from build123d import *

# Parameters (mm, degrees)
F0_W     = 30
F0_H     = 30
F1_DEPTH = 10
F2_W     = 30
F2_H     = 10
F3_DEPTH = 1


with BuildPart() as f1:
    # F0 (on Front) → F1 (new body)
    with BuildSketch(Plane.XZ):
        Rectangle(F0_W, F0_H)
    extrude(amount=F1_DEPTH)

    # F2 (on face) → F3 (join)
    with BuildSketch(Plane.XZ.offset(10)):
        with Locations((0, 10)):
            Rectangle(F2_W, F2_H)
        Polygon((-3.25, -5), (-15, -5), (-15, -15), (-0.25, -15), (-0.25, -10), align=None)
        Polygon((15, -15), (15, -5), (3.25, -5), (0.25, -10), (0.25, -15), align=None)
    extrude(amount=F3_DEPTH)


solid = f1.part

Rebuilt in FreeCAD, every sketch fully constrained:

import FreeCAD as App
import Part
import Sketcher
from FreeCAD import Vector

doc = App.newDocument("Part")
params = doc.addObject("Spreadsheet::Sheet", "Params")
for row, (alias, value) in enumerate([
    ("sketch1_width", "30 mm"),
    ("pad1_length", "10 mm"),
    ("sketch2_width", "30 mm"),
    ("sketch2_height", "10 mm"),
    ("sketch2_height2", "5 mm"),
    ("sketch2_width2", "11.75 mm"),
    ("pad2_length", "1 mm"),
], start=1):
    params.set(f"A{row}", alias)
    params.set(f"B{row}", "=" + value)
    params.setAlias(f"B{row}", alias)

body = doc.addObject("PartDesign::Body", "Body")

sketch1 = body.newObject("Sketcher::SketchObject", "Sketch")
sketch1.AttachmentSupport = (doc.getObject("XZ_Plane"), [""])
sketch1.MapMode = "FlatFace"
sketch1.addGeometry([
    Part.LineSegment(Vector(-15, 15, 0), Vector(-15, -15, 0)),
    Part.LineSegment(Vector(-15, -15, 0), Vector(15, -15, 0)),
    Part.LineSegment(Vector(15, -15, 0), Vector(15, 15, 0)),
    Part.LineSegment(Vector(15, 15, 0), Vector(-15, 15, 0)),
], False)
sketch1.addConstraint([
    Sketcher.Constraint("Coincident", 0, 2, 1, 1),
    Sketcher.Constraint("Coincident", 1, 2, 2, 1),
    Sketcher.Constraint("Coincident", 2, 2, 3, 1),
    Sketcher.Constraint("Coincident", 3, 2, 0, 1),
    Sketcher.Constraint("Vertical", 0),
    Sketcher.Constraint("Horizontal", 1),
    Sketcher.Constraint("Vertical", 2),
    Sketcher.Constraint("Horizontal", 3),
    Sketcher.Constraint("Symmetric", 0, 2, 2, 2, -1, 1),
    Sketcher.Constraint("Equal", 3, 0),
    Sketcher.Constraint("DistanceX", 1, 1, 1, 2, 30.0),
])
sketch1.setExpression("Constraints[10]", "Params.sketch1_width")
pad1 = body.newObject("PartDesign::Pad", "Pad")
pad1.Profile = sketch1
pad1.setExpression("Length", "Params.pad1_length")

sketch2 = body.newObject("Sketcher::SketchObject", "Sketch001")
sketch2.AttachmentSupport = (doc.getObject("XZ_Plane"), [""])
sketch2.MapMode = "FlatFace"
sketch2.AttachmentOffset = App.Placement(Vector(0, 0, 10), App.Rotation())
sketch2.addGeometry([
    Part.LineSegment(Vector(-15, 15, 0), Vector(-15, 5, 0)),
    Part.LineSegment(Vector(-15, 5, 0), Vector(15, 5, 0)),
    Part.LineSegment(Vector(15, 5, 0), Vector(15, 15, 0)),
    Part.LineSegment(Vector(15, 15, 0), Vector(-15, 15, 0)),
    Part.LineSegment(Vector(-3.25, -5, 0), Vector(-15, -5, 0)),
    Part.LineSegment(Vector(-15, -5, 0), Vector(-15, -15, 0)),
    Part.LineSegment(Vector(-15, -15, 0), Vector(-0.25, -15, 0)),
    Part.LineSegment(Vector(-0.25, -15, 0), Vector(-0.25, -10, 0)),
    Part.LineSegment(Vector(-0.25, -10, 0), Vector(-3.25, -5, 0)),
    Part.LineSegment(Vector(15, -15, 0), Vector(15, -5, 0)),
    Part.LineSegment(Vector(15, -5, 0), Vector(3.25, -5, 0)),
    Part.LineSegment(Vector(3.25, -5, 0), Vector(0.25, -10, 0)),
    Part.LineSegment(Vector(0.25, -10, 0), Vector(0.25, -15, 0)),
    Part.LineSegment(Vector(0.25, -15, 0), Vector(15, -15, 0)),
], False)
sketch2.addConstraint([
    Sketcher.Constraint("Coincident", 0, 2, 1, 1),
    Sketcher.Constraint("Coincident", 1, 2, 2, 1),
    Sketcher.Constraint("Coincident", 2, 2, 3, 1),
    Sketcher.Constraint("Coincident", 3, 2, 0, 1),
    Sketcher.Constraint("Coincident", 4, 2, 5, 1),
    Sketcher.Constraint("Coincident", 5, 2, 6, 1),
    Sketcher.Constraint("Coincident", 6, 2, 7, 1),
    Sketcher.Constraint("Coincident", 7, 2, 8, 1),
    Sketcher.Constraint("Coincident", 8, 2, 4, 1),
    Sketcher.Constraint("Coincident", 9, 2, 10, 1),
    Sketcher.Constraint("Coincident", 10, 2, 11, 1),
    Sketcher.Constraint("Coincident", 11, 2, 12, 1),
    Sketcher.Constraint("Coincident", 12, 2, 13, 1),
    Sketcher.Constraint("Coincident", 13, 2, 9, 1),
    Sketcher.Constraint("Vertical", 0),
    Sketcher.Constraint("Horizontal", 1),
    Sketcher.Constraint("Vertical", 2),
    Sketcher.Constraint("Horizontal", 3),
    Sketcher.Constraint("Horizontal", 4),
    Sketcher.Constraint("Vertical", 5),
    Sketcher.Constraint("Horizontal", 6),
    Sketcher.Constraint("Vertical", 7),
    Sketcher.Constraint("Vertical", 9),
    Sketcher.Constraint("Horizontal", 10),
    Sketcher.Constraint("Vertical", 12),
    Sketcher.Constraint("Horizontal", 13),
    Sketcher.Constraint("Symmetric", 1, 2, 4, 2, -1, 1),
    Sketcher.Constraint("Symmetric", 0, 2, 9, 2, -1, 1),
    Sketcher.Constraint("Symmetric", 7, 2, 11, 2, -2),
    Sketcher.Constraint("Symmetric", 5, 2, 13, 2, -2),
    Sketcher.Constraint("Equal", 4, 10),
    Sketcher.Constraint("Equal", 2, 5),
    Sketcher.Constraint("DistanceX", 1, 1, 1, 2, 30.0),
    Sketcher.Constraint("DistanceY", 0, 2, 0, 1, 10.0),
    Sketcher.Constraint("DistanceY", 7, 1, 7, 2, 5.0),
    Sketcher.Constraint("DistanceY", -1, 1, 0, 2, 5.0),
    Sketcher.Constraint("DistanceX", 8, 2, 7, 2, 3.0),
    Sketcher.Constraint("DistanceX", 4, 2, 4, 1, 11.75),
])
sketch2.setExpression("Constraints[32]", "Params.sketch2_width")
sketch2.setExpression("Constraints[33]", "Params.sketch2_height")
sketch2.setExpression("Constraints[34]", "Params.sketch2_height2")
sketch2.setExpression("Constraints[37]", "Params.sketch2_width2")
pad2 = body.newObject("PartDesign::Pad", "Pad001")
pad2.Profile = sketch2
pad2.setExpression("Length", "Params.pad2_length")

doc.recompute()
